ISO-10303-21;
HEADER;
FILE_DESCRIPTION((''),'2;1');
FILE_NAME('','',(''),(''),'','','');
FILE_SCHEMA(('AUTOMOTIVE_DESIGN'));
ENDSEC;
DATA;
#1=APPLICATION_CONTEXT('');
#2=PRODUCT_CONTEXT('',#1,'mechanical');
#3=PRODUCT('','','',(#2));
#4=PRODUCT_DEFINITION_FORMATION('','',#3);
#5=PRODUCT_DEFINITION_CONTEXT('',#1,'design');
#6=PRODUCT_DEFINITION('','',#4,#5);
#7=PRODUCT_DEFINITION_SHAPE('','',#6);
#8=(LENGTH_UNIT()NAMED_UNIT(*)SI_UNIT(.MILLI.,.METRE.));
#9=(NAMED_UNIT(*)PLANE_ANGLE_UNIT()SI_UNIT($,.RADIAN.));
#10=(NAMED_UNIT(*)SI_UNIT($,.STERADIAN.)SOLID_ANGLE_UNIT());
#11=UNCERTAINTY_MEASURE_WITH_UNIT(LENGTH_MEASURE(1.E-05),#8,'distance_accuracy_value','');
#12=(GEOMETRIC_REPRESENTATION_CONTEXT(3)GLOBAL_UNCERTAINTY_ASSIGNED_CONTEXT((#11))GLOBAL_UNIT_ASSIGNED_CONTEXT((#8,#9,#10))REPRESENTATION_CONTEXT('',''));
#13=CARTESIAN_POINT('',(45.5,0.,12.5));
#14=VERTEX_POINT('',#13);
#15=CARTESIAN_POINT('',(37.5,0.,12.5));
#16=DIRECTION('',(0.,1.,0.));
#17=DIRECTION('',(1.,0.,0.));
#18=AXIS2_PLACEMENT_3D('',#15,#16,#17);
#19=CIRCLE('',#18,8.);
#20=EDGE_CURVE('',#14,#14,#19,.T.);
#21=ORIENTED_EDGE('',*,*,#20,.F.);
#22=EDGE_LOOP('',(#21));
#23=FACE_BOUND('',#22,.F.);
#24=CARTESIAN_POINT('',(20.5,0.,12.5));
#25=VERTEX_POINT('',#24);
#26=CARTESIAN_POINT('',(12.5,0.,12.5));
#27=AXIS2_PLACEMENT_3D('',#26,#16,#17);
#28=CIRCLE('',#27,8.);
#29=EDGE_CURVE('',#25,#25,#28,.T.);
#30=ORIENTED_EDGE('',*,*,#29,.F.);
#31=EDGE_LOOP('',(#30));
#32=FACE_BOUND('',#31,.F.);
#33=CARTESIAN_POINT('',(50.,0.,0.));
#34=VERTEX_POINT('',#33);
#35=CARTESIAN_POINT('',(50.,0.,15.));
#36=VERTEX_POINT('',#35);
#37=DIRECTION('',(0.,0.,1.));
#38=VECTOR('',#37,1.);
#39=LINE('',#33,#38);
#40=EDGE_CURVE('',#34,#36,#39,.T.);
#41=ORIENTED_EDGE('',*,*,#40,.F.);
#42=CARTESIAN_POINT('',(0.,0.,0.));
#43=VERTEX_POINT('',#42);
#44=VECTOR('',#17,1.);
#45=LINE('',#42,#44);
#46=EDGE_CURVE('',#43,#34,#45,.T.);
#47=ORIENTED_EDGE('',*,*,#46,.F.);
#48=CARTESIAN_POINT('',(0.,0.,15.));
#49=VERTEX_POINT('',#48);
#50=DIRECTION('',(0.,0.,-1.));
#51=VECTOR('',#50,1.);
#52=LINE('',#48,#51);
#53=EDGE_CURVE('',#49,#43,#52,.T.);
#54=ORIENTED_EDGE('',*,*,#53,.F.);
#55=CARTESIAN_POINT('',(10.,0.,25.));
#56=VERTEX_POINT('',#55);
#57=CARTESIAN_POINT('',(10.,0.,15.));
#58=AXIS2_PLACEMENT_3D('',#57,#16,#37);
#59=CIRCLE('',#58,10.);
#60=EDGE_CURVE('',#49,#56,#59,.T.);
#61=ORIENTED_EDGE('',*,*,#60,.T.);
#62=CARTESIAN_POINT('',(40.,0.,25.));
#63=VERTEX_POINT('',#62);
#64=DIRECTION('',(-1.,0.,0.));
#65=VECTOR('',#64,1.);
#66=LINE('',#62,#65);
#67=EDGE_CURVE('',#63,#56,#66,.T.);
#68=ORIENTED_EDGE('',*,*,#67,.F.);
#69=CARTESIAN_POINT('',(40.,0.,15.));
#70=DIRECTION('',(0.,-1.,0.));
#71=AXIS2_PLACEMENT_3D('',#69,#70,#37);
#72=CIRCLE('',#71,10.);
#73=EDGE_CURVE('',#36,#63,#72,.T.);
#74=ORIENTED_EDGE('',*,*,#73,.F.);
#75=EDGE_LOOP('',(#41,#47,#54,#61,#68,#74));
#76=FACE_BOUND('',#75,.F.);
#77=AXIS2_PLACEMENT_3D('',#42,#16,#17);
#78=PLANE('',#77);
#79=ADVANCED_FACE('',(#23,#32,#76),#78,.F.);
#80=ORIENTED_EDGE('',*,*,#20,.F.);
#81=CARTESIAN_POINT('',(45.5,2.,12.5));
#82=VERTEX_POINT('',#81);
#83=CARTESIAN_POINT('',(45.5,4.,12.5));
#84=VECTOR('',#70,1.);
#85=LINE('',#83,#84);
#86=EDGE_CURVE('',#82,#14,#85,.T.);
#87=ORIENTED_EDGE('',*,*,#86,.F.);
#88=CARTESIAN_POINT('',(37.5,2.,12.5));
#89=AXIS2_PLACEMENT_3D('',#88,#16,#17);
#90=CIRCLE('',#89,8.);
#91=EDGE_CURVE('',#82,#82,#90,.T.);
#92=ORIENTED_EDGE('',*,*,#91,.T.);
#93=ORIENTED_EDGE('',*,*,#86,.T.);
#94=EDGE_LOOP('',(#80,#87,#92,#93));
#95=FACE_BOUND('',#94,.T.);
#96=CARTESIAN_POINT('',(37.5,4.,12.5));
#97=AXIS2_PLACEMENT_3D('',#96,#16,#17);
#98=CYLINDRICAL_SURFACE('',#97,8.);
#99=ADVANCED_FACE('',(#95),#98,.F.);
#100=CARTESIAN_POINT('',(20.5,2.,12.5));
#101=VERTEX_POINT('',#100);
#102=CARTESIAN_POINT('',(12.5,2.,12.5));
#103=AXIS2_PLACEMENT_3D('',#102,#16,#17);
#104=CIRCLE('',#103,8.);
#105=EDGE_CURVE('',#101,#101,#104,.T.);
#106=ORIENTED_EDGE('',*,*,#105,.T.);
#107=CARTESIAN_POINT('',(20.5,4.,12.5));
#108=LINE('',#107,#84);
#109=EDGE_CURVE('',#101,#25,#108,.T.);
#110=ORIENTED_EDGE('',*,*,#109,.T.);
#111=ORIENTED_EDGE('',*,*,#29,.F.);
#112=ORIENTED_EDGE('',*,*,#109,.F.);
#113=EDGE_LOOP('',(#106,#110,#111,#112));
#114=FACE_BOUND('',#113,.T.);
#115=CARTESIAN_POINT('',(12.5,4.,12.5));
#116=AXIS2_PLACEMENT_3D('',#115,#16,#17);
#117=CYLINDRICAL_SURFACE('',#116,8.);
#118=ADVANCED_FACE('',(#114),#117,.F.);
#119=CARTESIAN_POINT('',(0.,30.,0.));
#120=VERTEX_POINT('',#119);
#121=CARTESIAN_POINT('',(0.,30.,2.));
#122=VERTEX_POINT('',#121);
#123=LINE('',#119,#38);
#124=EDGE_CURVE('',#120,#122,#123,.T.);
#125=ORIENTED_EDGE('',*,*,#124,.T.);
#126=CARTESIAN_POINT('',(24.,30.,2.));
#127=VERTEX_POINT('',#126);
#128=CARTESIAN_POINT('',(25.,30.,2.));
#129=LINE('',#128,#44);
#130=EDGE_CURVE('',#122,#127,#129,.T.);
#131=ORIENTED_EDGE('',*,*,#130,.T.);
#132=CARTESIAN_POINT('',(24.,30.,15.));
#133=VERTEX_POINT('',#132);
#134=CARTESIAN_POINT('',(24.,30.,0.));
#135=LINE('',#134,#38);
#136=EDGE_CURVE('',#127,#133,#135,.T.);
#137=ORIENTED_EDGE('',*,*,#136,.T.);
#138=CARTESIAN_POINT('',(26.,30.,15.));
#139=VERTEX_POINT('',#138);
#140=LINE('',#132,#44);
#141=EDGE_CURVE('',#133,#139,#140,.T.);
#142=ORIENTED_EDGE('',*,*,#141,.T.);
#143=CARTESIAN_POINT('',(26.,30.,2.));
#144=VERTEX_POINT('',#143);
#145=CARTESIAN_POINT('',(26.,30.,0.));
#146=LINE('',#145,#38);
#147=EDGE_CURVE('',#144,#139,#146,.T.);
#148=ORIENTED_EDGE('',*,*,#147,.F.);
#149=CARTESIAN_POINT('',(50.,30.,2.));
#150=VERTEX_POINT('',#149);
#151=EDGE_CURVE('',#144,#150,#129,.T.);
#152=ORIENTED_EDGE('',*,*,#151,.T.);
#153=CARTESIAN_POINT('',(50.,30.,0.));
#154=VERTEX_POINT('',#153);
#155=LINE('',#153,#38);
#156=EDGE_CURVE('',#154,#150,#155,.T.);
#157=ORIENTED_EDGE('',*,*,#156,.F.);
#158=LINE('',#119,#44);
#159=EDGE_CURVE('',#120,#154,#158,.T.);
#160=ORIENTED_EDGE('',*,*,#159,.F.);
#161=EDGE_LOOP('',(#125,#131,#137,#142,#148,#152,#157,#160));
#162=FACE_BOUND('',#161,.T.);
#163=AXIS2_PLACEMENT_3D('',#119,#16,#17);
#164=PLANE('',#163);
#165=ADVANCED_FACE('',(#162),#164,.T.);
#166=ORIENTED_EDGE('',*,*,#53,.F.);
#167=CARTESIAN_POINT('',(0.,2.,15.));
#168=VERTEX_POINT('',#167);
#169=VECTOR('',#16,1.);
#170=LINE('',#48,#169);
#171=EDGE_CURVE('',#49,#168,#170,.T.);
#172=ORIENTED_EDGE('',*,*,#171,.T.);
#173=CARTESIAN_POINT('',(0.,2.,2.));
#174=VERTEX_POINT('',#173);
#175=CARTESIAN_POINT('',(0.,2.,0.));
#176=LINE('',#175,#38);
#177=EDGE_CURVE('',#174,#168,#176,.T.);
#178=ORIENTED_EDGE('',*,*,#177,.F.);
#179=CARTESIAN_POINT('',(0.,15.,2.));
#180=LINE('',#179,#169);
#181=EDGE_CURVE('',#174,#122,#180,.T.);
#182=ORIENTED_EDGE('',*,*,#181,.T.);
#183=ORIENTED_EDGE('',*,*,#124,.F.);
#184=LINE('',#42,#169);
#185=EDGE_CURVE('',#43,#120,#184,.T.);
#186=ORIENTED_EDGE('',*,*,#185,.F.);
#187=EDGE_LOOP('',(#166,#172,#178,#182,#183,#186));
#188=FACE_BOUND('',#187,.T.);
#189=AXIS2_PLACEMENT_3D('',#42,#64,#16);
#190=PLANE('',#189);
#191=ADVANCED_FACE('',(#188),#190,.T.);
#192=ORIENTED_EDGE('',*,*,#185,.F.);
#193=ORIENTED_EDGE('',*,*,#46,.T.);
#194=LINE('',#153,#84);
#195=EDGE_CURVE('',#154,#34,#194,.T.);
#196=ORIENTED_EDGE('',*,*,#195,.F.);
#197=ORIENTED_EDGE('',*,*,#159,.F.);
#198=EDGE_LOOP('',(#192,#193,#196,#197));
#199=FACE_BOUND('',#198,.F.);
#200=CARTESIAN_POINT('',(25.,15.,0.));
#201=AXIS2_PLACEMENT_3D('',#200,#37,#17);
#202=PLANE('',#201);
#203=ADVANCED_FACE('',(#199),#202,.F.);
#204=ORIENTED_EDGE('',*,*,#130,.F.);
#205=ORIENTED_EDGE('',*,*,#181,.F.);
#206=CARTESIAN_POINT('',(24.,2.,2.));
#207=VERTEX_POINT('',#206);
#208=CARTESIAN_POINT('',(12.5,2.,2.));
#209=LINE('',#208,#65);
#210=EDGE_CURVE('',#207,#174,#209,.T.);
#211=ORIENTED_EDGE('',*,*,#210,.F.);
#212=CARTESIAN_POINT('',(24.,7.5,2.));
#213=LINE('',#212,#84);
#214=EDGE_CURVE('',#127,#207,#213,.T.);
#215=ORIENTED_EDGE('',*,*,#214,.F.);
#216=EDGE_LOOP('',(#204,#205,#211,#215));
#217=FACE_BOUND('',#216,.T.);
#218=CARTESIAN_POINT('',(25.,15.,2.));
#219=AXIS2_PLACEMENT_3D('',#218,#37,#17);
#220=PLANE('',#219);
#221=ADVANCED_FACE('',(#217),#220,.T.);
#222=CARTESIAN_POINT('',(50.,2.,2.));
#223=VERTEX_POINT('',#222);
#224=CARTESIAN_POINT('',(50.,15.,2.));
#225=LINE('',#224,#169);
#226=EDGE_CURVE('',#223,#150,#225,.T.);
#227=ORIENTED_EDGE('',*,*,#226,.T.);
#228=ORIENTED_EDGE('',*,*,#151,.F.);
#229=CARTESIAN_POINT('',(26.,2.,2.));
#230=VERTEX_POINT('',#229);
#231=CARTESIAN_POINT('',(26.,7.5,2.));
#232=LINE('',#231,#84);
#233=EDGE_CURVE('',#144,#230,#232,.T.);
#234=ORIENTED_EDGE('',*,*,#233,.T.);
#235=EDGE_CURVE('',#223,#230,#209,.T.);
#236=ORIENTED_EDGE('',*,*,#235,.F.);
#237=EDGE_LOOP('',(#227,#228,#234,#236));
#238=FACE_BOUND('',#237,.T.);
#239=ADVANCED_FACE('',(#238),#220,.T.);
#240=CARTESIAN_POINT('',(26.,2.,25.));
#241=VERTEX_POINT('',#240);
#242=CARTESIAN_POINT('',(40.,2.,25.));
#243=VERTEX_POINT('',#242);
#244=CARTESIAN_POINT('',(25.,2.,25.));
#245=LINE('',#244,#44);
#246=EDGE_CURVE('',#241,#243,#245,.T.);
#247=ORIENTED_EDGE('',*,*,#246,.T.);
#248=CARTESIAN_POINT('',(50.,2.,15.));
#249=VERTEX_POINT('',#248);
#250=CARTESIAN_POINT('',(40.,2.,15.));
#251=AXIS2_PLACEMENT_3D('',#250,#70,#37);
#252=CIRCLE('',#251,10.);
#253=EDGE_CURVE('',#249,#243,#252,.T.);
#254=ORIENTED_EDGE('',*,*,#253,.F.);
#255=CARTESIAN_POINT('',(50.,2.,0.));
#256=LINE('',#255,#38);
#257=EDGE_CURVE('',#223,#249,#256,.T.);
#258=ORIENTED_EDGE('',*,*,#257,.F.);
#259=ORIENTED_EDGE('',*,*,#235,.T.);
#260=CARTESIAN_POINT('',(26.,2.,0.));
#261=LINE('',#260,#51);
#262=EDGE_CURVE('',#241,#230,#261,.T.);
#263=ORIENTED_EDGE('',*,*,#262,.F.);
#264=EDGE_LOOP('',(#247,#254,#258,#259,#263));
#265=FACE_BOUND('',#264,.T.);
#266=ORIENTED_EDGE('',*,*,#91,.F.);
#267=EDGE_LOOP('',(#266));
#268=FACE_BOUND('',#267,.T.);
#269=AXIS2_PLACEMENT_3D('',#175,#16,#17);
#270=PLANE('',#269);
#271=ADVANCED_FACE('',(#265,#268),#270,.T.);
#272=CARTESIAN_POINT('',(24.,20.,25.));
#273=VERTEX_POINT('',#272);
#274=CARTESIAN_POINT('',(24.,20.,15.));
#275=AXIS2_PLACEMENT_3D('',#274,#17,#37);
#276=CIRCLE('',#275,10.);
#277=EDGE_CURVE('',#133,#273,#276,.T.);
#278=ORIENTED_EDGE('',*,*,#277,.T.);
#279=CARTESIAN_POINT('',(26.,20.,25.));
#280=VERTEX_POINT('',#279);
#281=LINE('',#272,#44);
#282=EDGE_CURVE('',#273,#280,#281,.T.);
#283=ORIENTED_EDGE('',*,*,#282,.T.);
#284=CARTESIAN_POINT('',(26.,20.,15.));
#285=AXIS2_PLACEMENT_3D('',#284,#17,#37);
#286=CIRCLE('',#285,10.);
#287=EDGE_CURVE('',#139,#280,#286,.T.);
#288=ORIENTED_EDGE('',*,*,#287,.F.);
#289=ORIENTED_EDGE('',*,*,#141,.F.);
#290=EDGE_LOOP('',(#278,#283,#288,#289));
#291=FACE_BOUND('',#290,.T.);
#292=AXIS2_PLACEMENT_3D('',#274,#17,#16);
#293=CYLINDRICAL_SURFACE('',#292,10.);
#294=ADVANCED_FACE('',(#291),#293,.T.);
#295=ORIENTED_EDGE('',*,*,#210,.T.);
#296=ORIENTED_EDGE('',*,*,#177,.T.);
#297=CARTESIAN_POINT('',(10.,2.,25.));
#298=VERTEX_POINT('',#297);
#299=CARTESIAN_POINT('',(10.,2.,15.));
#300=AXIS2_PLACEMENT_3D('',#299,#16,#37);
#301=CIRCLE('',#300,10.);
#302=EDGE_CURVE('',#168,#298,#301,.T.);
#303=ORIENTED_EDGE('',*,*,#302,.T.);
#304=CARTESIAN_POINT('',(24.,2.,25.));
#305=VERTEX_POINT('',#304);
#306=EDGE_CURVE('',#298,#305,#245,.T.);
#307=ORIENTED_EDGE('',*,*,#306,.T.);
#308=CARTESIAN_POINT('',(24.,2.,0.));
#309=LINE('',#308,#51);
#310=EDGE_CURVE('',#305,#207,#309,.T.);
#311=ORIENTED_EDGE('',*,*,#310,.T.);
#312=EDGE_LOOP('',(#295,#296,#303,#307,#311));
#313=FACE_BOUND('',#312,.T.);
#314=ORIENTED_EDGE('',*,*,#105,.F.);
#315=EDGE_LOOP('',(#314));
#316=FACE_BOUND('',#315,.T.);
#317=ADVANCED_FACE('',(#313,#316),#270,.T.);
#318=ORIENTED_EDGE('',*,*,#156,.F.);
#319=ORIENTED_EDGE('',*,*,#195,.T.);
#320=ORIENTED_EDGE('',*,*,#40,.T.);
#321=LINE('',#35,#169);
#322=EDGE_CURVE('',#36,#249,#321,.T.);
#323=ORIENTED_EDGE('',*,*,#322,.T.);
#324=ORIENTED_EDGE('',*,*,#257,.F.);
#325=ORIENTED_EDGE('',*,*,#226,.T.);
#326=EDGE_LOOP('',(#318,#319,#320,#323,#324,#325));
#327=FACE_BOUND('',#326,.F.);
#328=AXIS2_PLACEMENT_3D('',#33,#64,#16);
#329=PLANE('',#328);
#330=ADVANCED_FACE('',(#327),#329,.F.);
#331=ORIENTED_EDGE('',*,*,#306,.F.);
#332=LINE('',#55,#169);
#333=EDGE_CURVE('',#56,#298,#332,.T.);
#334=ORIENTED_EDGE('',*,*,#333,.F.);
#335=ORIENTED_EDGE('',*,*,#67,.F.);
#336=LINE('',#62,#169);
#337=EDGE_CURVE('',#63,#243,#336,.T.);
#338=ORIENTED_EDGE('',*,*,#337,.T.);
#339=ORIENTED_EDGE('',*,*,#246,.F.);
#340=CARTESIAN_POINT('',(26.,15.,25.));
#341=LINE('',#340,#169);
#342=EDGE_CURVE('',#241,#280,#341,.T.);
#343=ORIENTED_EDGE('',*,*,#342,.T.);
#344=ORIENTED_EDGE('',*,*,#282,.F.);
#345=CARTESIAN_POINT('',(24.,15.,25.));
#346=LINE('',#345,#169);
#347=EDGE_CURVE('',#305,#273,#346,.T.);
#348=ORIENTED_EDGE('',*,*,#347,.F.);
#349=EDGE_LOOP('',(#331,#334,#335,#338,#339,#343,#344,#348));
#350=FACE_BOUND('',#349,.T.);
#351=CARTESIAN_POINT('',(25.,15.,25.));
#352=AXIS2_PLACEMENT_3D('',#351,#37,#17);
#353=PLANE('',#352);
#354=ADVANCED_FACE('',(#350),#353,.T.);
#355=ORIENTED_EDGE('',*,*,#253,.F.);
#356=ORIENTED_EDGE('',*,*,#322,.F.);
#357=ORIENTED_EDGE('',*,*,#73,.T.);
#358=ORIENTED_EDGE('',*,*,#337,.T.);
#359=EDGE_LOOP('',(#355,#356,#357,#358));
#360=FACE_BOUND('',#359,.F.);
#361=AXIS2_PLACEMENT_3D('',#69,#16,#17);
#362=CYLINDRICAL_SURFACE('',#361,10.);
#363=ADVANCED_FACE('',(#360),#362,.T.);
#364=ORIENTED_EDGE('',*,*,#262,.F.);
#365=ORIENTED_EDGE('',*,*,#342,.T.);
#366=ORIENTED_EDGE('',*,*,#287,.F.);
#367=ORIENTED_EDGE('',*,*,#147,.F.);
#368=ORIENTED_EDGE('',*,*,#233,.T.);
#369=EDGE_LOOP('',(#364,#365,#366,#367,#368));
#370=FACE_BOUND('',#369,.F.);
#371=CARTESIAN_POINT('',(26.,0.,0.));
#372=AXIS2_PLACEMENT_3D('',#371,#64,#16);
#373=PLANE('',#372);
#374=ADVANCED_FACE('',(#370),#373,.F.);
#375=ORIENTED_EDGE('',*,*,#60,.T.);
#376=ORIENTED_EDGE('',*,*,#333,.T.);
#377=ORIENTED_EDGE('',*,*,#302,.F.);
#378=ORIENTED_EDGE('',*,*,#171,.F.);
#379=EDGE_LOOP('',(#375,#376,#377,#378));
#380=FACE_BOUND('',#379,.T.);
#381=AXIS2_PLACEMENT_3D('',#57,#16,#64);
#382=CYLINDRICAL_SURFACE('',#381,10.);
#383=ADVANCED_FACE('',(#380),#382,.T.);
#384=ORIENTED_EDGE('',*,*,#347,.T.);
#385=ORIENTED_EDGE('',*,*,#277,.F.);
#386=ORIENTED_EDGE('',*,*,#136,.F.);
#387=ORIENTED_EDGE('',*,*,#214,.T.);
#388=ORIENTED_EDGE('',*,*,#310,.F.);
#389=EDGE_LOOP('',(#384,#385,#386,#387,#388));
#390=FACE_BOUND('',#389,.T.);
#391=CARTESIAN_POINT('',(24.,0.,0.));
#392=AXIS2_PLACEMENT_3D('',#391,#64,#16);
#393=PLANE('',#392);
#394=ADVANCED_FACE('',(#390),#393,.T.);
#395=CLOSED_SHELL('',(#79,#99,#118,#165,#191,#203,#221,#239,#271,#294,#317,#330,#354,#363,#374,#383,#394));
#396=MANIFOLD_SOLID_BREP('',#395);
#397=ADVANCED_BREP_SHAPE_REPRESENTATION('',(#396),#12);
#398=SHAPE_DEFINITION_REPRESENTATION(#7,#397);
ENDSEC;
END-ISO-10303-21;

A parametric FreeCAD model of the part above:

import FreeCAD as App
import Part
import Sketcher
from FreeCAD import Vector
Q = App.Units.Quantity


def edges_at(feature, points):
    """Names of the edges that pass closest to the given points."""
    edges = feature.Shape.Edges
    near = lambda p: min(range(len(edges)), key=lambda i: edges[i].distToShape(Part.Vertex(*p))[0])
    return sorted({f"Edge{near(p) + 1}" for p in points})


def add_polygon(sketch, points):
    """Adds a closed chain of lines whose ends are joined by coincident constraints."""
    first, n = sketch.GeometryCount, len(points)
    for a, b in zip(points, points[1:] + points[:1]):
        sketch.addGeometry(Part.LineSegment(App.Vector(*a, 0), App.Vector(*b, 0)), False)
    for i in range(n):
        sketch.addConstraint(Sketcher.Constraint("Coincident", first + i, 2, first + (i + 1) % n, 1))

doc = App.newDocument("Part")
body = doc.addObject("PartDesign::Body", "Body")

# Sketch on XZ plane
sketch1 = body.newObject("Sketcher::SketchObject", "Sketch")
sketch1.AttachmentSupport = (doc.getObject("XZ_Plane"), [""])
sketch1.MapMode = "FlatFace"
sketch1.AttachmentOffset = App.Placement(Vector(0, 0, -4), App.Rotation())
sketch1.addGeometry(Part.Circle(Vector(12, 12, 0), Vector(0, 0, 1), 8), False)
sketch1.addConstraint([
    Sketcher.Constraint("Diameter", 0, Q("16 mm")),
    Sketcher.Constraint("DistanceX", -1, 1, 0, 3, Q("12.5 mm")),
    Sketcher.Constraint("DistanceY", -1, 1, 0, 3, Q("12.5 mm")),
])
pad1 = body.newObject("PartDesign::Pad", "Pad")
pad1.Profile = sketch1
pad1.Length = 10
body2 = doc.addObject("PartDesign::Body", "Body001")
body2.AllowCompound = True

# Sketch on XZ plane
sketch2 = body2.newObject("Sketcher::SketchObject", "Sketch001")
sketch2.AttachmentSupport = (doc.getObject("XZ_Plane001"), [""])
sketch2.MapMode = "FlatFace"
sketch2.AttachmentOffset = App.Placement(Vector(0, 0, -4), App.Rotation())
sketch2.addGeometry(Part.Circle(Vector(38, 12, 0), Vector(0, 0, 1), 8), False)
sketch2.addConstraint([
    Sketcher.Constraint("Diameter", 0, Q("16 mm")),
    Sketcher.Constraint("DistanceX", -1, 1, 0, 3, Q("37.5 mm")),
    Sketcher.Constraint("DistanceY", -1, 1, 0, 3, Q("12.5 mm")),
])
pad2 = body2.newObject("PartDesign::Pad", "Pad001")
pad2.Profile = sketch2
pad2.Length = 10
doc.recompute()

boolean = body2.newObject("PartDesign::Boolean", "Boolean")
boolean.Type = "Fuse"
boolean.addObjects([body])
body3 = doc.addObject("PartDesign::Body", "Body002")

# Sketch on XY plane
sketch3 = body3.newObject("Sketcher::SketchObject", "Sketch002")
sketch3.AttachmentSupport = (doc.getObject("XY_Plane002"), [""])
sketch3.MapMode = "FlatFace"
add_polygon(sketch3, [(24, 30), (24, 0), (26, 0), (26, 30)])  # lines 0-3
sketch3.addConstraint([
    Sketcher.Constraint("Vertical", 0),
    Sketcher.Constraint("Horizontal", 1),
    Sketcher.Constraint("Vertical", 2),
    Sketcher.Constraint("Horizontal", 3),
    Sketcher.Constraint("PointOnObject", 0, 2, -1),
    Sketcher.Constraint("DistanceX", 1, 1, 1, 2, Q("2 mm")),
    Sketcher.Constraint("DistanceY", 0, 2, 0, 1, Q("30 mm")),
    Sketcher.Constraint("DistanceX", -1, 1, 0, 2, Q("24 mm")),
])
pad3 = body3.newObject("PartDesign::Pad", "Pad002")
pad3.Profile = sketch3
pad3.Length = 25
doc.recompute()

fillet = body3.newObject("PartDesign::Fillet", "Fillet")
fillet.Base = (pad3, edges_at(pad3, [(25, 30, 25)]))
fillet.Radius = 10
body4 = doc.addObject("PartDesign::Body", "Body003")

# Sketch on XY plane
sketch4 = body4.newObject("Sketcher::SketchObject", "Sketch003")
sketch4.AttachmentSupport = (doc.getObject("XY_Plane003"), [""])
sketch4.MapMode = "FlatFace"
add_polygon(sketch4, [(0, 2), (0, 0), (50, 0), (50, 2)])  # lines 0-3
sketch4.addConstraint([
    Sketcher.Constraint("Vertical", 0),
    Sketcher.Constraint("Horizontal", 1),
    Sketcher.Constraint("Vertical", 2),
    Sketcher.Constraint("Horizontal", 3),
    Sketcher.Constraint("Coincident", 0, 2, -1, 1),
    Sketcher.Constraint("DistanceX", 1, 1, 1, 2, Q("50 mm")),
    Sketcher.Constraint("DistanceY", 0, 2, 0, 1, Q("2 mm")),
])
pad4 = body4.newObject("PartDesign::Pad", "Pad003")
pad4.Profile = sketch4
pad4.Length = 25
doc.recompute()

fillet2 = body4.newObject("PartDesign::Fillet", "Fillet001")
fillet2.Base = (pad4, edges_at(pad4, [(0, 1, 25), (50, 1, 25)]))
fillet2.Radius = 10
body5 = doc.addObject("PartDesign::Body", "Body004")

# Sketch on XY plane
sketch5 = body5.newObject("Sketcher::SketchObject", "Sketch004")
sketch5.AttachmentSupport = (doc.getObject("XY_Plane004"), [""])
sketch5.MapMode = "FlatFace"
add_polygon(sketch5, [(0, 30), (0, 0), (50, 0), (50, 30)])  # lines 0-3
sketch5.addConstraint([
    Sketcher.Constraint("Vertical", 0),
    Sketcher.Constraint("Horizontal", 1),
    Sketcher.Constraint("Vertical", 2),
    Sketcher.Constraint("Horizontal", 3),
    Sketcher.Constraint("Coincident", 0, 2, -1, 1),
    Sketcher.Constraint("DistanceX", 1, 1, 1, 2, Q("50 mm")),
    Sketcher.Constraint("DistanceY", 0, 2, 0, 1, Q("30 mm")),
])
pad5 = body5.newObject("PartDesign::Pad", "Pad004")
pad5.Profile = sketch5
pad5.Length = 2
doc.recompute()

boolean2 = body5.newObject("PartDesign::Boolean", "Boolean001")
boolean2.Type = "Fuse"
boolean2.addObjects([body3])
doc.recompute()

boolean3 = body5.newObject("PartDesign::Boolean", "Boolean002")
boolean3.Type = "Fuse"
boolean3.addObjects([body4])
doc.recompute()

boolean4 = body5.newObject("PartDesign::Boolean", "Boolean003")
boolean4.Type = "Cut"
boolean4.addObjects([body2])

doc.recompute()
